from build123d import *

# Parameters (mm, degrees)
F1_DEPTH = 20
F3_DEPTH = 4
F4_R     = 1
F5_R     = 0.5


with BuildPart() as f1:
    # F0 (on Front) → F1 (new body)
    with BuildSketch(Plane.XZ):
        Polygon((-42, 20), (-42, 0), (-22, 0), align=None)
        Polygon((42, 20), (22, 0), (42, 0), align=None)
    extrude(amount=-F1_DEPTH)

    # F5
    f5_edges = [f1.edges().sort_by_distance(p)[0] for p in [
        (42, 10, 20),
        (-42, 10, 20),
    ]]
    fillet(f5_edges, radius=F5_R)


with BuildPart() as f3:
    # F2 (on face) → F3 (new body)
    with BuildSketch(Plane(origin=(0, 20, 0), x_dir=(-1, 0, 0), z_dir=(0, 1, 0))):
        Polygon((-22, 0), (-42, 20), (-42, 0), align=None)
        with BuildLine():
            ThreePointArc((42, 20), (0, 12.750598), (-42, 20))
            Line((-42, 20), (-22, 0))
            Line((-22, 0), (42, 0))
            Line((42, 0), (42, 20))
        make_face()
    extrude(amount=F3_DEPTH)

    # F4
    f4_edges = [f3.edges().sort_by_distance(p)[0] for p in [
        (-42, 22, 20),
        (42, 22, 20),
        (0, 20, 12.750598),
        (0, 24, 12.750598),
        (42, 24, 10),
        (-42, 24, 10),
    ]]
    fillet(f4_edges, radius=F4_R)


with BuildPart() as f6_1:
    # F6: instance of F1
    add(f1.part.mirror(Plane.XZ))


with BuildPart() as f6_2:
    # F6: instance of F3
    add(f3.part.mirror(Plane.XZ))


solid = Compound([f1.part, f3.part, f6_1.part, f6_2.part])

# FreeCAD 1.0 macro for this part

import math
import FreeCAD as App
import Part
import Sketcher
Q = App.Units.Quantity


def edges_at(feature, points):
    """Names of the edges that pass closest to the given points."""
    edges = feature.Shape.Edges
    near = lambda p: min(range(len(edges)), key=lambda i: edges[i].distToShape(Part.Vertex(*p))[0])
    return sorted({f"Edge{near(p) + 1}" for p in points})


def add_polygon(sketch, points):
    """Adds a closed chain of lines whose ends are joined by coincident constraints."""
    first, n = sketch.GeometryCount, len(points)
    for a, b in zip(points, points[1:] + points[:1]):
        sketch.addGeometry(Part.LineSegment(App.Vector(*a, 0), App.Vector(*b, 0)), False)
    for i in range(n):
        sketch.addConstraint(Sketcher.Constraint("Coincident", first + i, 2, first + (i + 1) % n, 1))

doc = App.newDocument("Part")
body = doc.addObject("PartDesign::Body", "Body")
body.AllowCompound = True

# Sketch on XZ plane
sketch1 = body.newObject("Sketcher::SketchObject", "Sketch")
sketch1.AttachmentSupport = (doc.getObject("XZ_Plane"), [""])
sketch1.MapMode = "FlatFace"
add_polygon(sketch1, [(-42, 20), (-42, 0), (-22, 0)])  # lines 0-2
add_polygon(sketch1, [(42, 20), (22, 0), (42, 0)])  # lines 3-5
sketch1.addConstraint([
    Sketcher.Constraint("Vertical", 0),
    Sketcher.Constraint("Horizontal", 1),
    Sketcher.Constraint("Horizontal", 4),
    Sketcher.Constraint("Vertical", 5),
    Sketcher.Constraint("Symmetric", 1, 2, 3, 2, -1, 1),
    Sketcher.Constraint("Symmetric", 0, 2, 4, 2, -2),
    Sketcher.Constraint("Perpendicular", 2, 3),
    Sketcher.Constraint("Horizontal", 2, 2, 5, 2),
    Sketcher.Constraint("DistanceX", 1, 1, 1, 2, Q("20 mm")),
    Sketcher.Constraint("DistanceX", 0, 2, -1, 1, Q("42 mm")),
])
pad1 = body.newObject("PartDesign::Pad", "Pad")
pad1.Profile = sketch1
pad1.Length = 20
pad1.Reversed = True
doc.recompute()

fillet = body.newObject("PartDesign::Fillet", "Fillet")
fillet.Base = (pad1, edges_at(pad1, [(42, 10, 20), (-42, 10, 20)]))
fillet.Radius = 0.5
body2 = doc.addObject("PartDesign::Body", "Body001")

# Sketch on XZ plane
sketch2 = body2.newObject("Sketcher::SketchObject", "Sketch001")
sketch2.AttachmentSupport = (doc.getObject("XZ_Plane001"), [""])
sketch2.MapMode = "FlatFace"
sketch2.AttachmentOffset = App.Placement(App.Vector(0, 0, -20), App.Rotation())
sketch2.addGeometry([
    Part.LineSegment(App.Vector(42, 20, 0), App.Vector(42, 0, 0)),
    Part.LineSegment(App.Vector(42, 0, 0), App.Vector(-42, 0, 0)),
    Part.LineSegment(App.Vector(-42, 0, 0), App.Vector(-42, 20, 0)),
    Part.ArcOfCircle(Part.Circle(App.Vector(0, 138, 0), App.Vector(0, 0, 1), 125), math.radians(-110), math.radians(-70)),
], False)
sketch2.addConstraint([
    Sketcher.Constraint("Coincident", 0, 2, 1, 1),
    Sketcher.Constraint("Coincident", 1, 2, 2, 1),
    Sketcher.Constraint("Coincident", 2, 2, 3, 1),
    Sketcher.Constraint("Coincident", 3, 2, 0, 1),
    Sketcher.Constraint("Vertical", 0),
    Sketcher.Constraint("Horizontal", 1),
    Sketcher.Constraint("Vertical", 2),
    Sketcher.Constraint("Symmetric", 0, 2, 1, 2, -1, 1),
    Sketcher.Constraint("PointOnObject", 3, 3, -2),
    Sketcher.Constraint("DistanceX", 1, 2, 1, 1, Q("84 mm")),
    Sketcher.Constraint("DistanceY", 0, 2, 0, 1, Q("20 mm")),
    Sketcher.Constraint("Radius", 3, Q("125.289909 mm")),
])
pad2 = body2.newObject("PartDesign::Pad", "Pad001")
pad2.Profile = sketch2
pad2.Length = 4
pad2.Reversed = True
doc.recompute()

fillet2 = body2.newObject("PartDesign::Fillet", "Fillet001")
fillet2.Base = (pad2, edges_at(pad2, [
    (-42, 22, 20),
    (42, 22, 20),
    (0, 20, 12.751),
    (0, 24, 12.751),
    (42, 24, 10),
    (-42, 24, 10),
]))
fillet2.Radius = 1
body3 = doc.addObject("PartDesign::Body", "Body002")
body3.AllowCompound = True
doc.recompute()

mirroring = doc.addObject("Part::Mirroring", "Mirroring")
mirroring.Source = body
mirroring.Base = App.Vector(0, 0, 0)
mirroring.Normal = App.Vector(0, -1, 0)
body3.BaseFeature = mirroring
doc.recompute()
body4 = doc.addObject("PartDesign::Body", "Body003")
doc.recompute()

mirroring2 = doc.addObject("Part::Mirroring", "Mirroring001")
mirroring2.Source = body2
mirroring2.Base = App.Vector(0, 0, 0)
mirroring2.Normal = App.Vector(0, -1, 0)
body4.BaseFeature = mirroring2
doc.recompute()
mirroring.Visibility = False
mirroring2.Visibility = False

doc.recompute()
